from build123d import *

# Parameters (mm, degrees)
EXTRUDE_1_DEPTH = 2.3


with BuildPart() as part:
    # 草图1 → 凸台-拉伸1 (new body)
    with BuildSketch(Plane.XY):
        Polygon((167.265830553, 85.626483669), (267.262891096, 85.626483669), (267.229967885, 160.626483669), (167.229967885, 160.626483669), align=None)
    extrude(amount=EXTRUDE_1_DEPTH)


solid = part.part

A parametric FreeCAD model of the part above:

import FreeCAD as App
import Part
import Sketcher
from FreeCAD import Vector

doc = App.newDocument("Part")
body = doc.addObject("PartDesign::Body", "Body")

# Sketch on XY plane
sketch1 = body.newObject("Sketcher::SketchObject", "Sketch")
sketch1.AttachmentSupport = (doc.getObject("XY_Plane"), [""])
sketch1.MapMode = "FlatFace"
sketch1.addGeometry(Part.LineSegment(Vector(167, 86, 0), Vector(267, 86, 0)), False)
sketch1.addGeometry(Part.LineSegment(Vector(267, 86, 0), Vector(267, 161, 0)), False)
sketch1.addGeometry(Part.LineSegment(Vector(267, 161, 0), Vector(167, 161, 0)), False)
sketch1.addGeometry(Part.LineSegment(Vector(167, 161, 0), Vector(167, 86, 0)), False)
sketch1.addConstraint(Sketcher.Constraint("Coincident", 0, 2, 1, 1))
sketch1.addConstraint(Sketcher.Constraint("Coincident", 1, 2, 2, 1))
sketch1.addConstraint(Sketcher.Constraint("Coincident", 2, 2, 3, 1))
sketch1.addConstraint(Sketcher.Constraint("Coincident", 3, 2, 0, 1))
sketch1.addConstraint(Sketcher.Constraint("Horizontal", 0))
sketch1.addConstraint(Sketcher.Constraint("Horizontal", 2))
sketch1.addConstraint(Sketcher.Constraint("DistanceX", 2, 2, 2, 1, 100.0))
sketch1.addConstraint(Sketcher.Constraint("DistanceY", 0, 2, 1, 2, 75.0))
sketch1.addConstraint(Sketcher.Constraint("DistanceX", 0, 1, 0, 2, 99.997061))
sketch1.addConstraint(Sketcher.Constraint("DistanceX", -1, 1, 0, 2, 267.262891))
sketch1.addConstraint(Sketcher.Constraint("DistanceY", -1, 1, 0, 2, 85.626484))
sketch1.addConstraint(Sketcher.Constraint("DistanceX", -1, 1, 1, 2, 267.229968))
pad1 = body.newObject("PartDesign::Pad", "Pad")
pad1.Profile = sketch1
pad1.Length = 2.3

doc.recompute()
